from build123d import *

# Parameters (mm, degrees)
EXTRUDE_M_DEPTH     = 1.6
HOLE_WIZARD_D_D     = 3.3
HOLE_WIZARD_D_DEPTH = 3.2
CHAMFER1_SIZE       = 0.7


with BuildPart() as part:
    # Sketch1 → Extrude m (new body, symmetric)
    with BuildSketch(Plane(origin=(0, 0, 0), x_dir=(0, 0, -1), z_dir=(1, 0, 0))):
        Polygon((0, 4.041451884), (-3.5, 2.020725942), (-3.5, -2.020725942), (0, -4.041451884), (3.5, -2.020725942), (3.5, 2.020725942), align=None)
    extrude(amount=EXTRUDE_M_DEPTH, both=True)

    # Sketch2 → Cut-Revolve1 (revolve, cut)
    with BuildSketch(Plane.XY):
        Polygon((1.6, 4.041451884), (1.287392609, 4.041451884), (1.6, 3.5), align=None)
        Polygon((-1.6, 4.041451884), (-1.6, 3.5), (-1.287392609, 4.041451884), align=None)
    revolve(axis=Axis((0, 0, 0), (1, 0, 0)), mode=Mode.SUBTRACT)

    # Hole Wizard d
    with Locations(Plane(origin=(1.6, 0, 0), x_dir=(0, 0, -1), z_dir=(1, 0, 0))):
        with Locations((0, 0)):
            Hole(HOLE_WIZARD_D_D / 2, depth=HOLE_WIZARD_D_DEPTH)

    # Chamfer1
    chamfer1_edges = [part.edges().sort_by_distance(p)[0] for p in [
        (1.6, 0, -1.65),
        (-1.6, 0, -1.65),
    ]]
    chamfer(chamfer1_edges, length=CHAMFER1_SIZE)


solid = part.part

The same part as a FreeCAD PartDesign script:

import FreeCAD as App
import Part
import Sketcher

V = App.Vector
Q = App.Units.Quantity


def edges_at(feature, points):
    """Names of the edges that pass closest to the given points."""
    edges = feature.Shape.Edges
    near = lambda p: min(range(len(edges)), key=lambda i: edges[i].distToShape(Part.Vertex(*p))[0])
    return sorted({f"Edge{near(p) + 1}" for p in points})


def add_polygon(sketch, points):
    """Adds a closed chain of lines whose ends are joined by coincident constraints."""
    first, n = sketch.GeometryCount, len(points)
    for a, b in zip(points, points[1:] + points[:1]):
        sketch.addGeometry(Part.LineSegment(App.Vector(*a, 0), App.Vector(*b, 0)), False)
    for i in range(n):
        sketch.addConstraint(Sketcher.Constraint("Coincident", first + i, 2, first + (i + 1) % n, 1))

doc = App.newDocument("Part")
body = doc.addObject("PartDesign::Body", "Body")

sketch1 = body.newObject("Sketcher::SketchObject", "Sketch")
sketch1.AttachmentSupport = (doc.getObject("YZ_Plane"), [""])
sketch1.MapMode = "FlatFace"
add_polygon(sketch1, [(4, 0), (2, 3.5), (-2, 3.5), (-4, 0), (-2, -3.5), (2, -3.5)])
sketch1.addConstraint([
    Sketcher.Constraint("Horizontal", 1),
    Sketcher.Constraint("Horizontal", 4),
    Sketcher.Constraint("Symmetric", 0, 2, 3, 2, -1, 1),
    Sketcher.Constraint("Symmetric", 2, 2, 5, 2, -1, 1),
    Sketcher.Constraint("PointOnObject", 2, 2, -1),
    Sketcher.Constraint("Parallel", 2, 5),
    Sketcher.Constraint("Vertical", 1, 2, 3, 2),
    Sketcher.Constraint("Angle", 0, Q("120 deg")),
    Sketcher.Constraint("DistanceY", 3, 2, 1, 2, Q("7 mm")),
    Sketcher.Constraint("DistanceX", 1, 2, 1, 1, Q("4.041452 mm")),
])
pad1 = body.newObject("PartDesign::Pad", "Pad")
pad1.Profile = sketch1
pad1.Length = 3.2
pad1.Midplane = True

sketch2 = body.newObject("Sketcher::SketchObject", "Sketch001")
sketch2.AttachmentSupport = (doc.getObject("XY_Plane"), [""])
sketch2.MapMode = "FlatFace"
add_polygon(sketch2, [(1.6, 4.04), (1.29, 4.04), (1.6, 3.5)])
add_polygon(sketch2, [(-1.6, 4.04), (-1.6, 3.5), (-1.29, 4.04)])
sketch2.addConstraint([
    Sketcher.Constraint("Horizontal", 0),
    Sketcher.Constraint("Vertical", 2),
    Sketcher.Constraint("Vertical", 3),
    Sketcher.Constraint("Horizontal", 5),
    Sketcher.Constraint("Symmetric", 1, 2, 3, 2, -2),
    Sketcher.Constraint("Symmetric", 0, 2, 4, 2, -2),
    Sketcher.Constraint("Angle", 1, Q("-60 deg")),
    Sketcher.Constraint("DistanceX", -1, 1, 1, 2, Q("1.6 mm")),
    Sketcher.Constraint("DistanceY", -1, 1, 1, 2, Q("3.5 mm")),
    Sketcher.Constraint("DistanceY", 2, 1, 2, 2, Q("0.541452 mm")),
])
groove = body.newObject("PartDesign::Groove", "Groove")
groove.Profile = sketch2
groove.ReferenceAxis = (sketch2, ["H_Axis"])
groove.Angle = 360

sketch3 = body.newObject("Sketcher::SketchObject", "Sketch002")
sketch3.AttachmentSupport = (doc.getObject("YZ_Plane"), [""])
sketch3.MapMode = "FlatFace"
sketch3.AttachmentOffset = App.Placement(V(0, 0, 1.6), App.Rotation())
sketch3.addGeometry(Part.Circle(V(0, 0, 0), V(0, 0, 1), 1.6), False)
sketch3.addConstraint([
    Sketcher.Constraint("Coincident", 0, 3, -1, 1),
    Sketcher.Constraint("Diameter", 0, Q("3.3 mm")),
])
doc.recompute()
hole = body.newObject("PartDesign::Hole", "Hole")
hole.Profile = sketch3
hole.ThreadType = "None"
hole.Diameter = 3.3
hole.DepthType = "Dimension"
hole.Depth = 3.2
hole.DrillPoint = "Flat"
doc.recompute()

chamfer = body.newObject("PartDesign::Chamfer", "Chamfer")
chamfer.Base = (hole, edges_at(hole, [(1.6, 0, -1.65), (-1.6, 0, -1.65)]))
chamfer.Size = 0.7

doc.recompute()
